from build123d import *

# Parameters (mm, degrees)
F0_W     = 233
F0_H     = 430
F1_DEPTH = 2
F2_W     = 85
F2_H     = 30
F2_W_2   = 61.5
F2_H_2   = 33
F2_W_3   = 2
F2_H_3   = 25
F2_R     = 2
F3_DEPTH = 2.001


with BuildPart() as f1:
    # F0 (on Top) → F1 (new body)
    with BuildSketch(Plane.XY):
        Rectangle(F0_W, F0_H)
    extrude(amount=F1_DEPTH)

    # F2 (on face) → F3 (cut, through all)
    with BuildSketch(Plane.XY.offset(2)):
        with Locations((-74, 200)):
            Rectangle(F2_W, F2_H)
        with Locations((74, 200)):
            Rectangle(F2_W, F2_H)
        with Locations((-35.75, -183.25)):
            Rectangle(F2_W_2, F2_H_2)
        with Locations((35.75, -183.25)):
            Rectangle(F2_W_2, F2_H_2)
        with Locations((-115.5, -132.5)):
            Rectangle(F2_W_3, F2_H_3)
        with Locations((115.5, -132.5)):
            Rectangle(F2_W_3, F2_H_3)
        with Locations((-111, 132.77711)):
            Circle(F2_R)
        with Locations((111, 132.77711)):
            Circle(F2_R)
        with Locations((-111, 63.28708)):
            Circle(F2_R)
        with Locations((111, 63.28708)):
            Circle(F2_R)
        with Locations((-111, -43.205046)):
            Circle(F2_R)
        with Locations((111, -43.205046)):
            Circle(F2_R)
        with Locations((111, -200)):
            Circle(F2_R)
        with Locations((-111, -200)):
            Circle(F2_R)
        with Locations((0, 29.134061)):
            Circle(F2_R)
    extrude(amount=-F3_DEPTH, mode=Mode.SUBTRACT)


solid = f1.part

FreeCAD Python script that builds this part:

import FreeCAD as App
import Part
import Sketcher

V = App.Vector
Q = App.Units.Quantity

doc = App.newDocument("Part")
params = doc.addObject("Spreadsheet::Sheet", "Params")
for row, (alias, value) in enumerate([
    ("sketch1_width", "233 mm"),
    ("sketch1_height", "430 mm"),
    ("pad1_length", "2 mm"),
    ("sketch2_diameter", "4 mm"),
    ("sketch2_width", "85 mm"),
    ("sketch2_width2", "2 mm"),
    ("sketch2_height", "30 mm"),
    ("sketch2_height2", "33 mm"),
], start=1):
    params.set(f"A{row}", alias)
    params.set(f"B{row}", "=" + value)
    params.setAlias(f"B{row}", alias)

body = doc.addObject("PartDesign::Body", "Body")

sketch1 = doc.addObject("Sketcher::SketchObject", "Sketch")
body.addObject(sketch1)
sketch1.AttachmentSupport = (doc.XY_Plane, [""])
sketch1.MapMode = "FlatFace"
sketch1.addGeometry(Part.LineSegment(V(-116.5, 215, 0), V(-116.5, -215, 0)), False)
sketch1.addGeometry(Part.LineSegment(V(-116.5, -215, 0), V(116.5, -215, 0)), False)
sketch1.addGeometry(Part.LineSegment(V(116.5, -215, 0), V(116.5, 215, 0)), False)
sketch1.addGeometry(Part.LineSegment(V(116.5, 215, 0), V(-116.5, 215, 0)), False)
sketch1.addConstraint(Sketcher.Constraint("Coincident", 0, 2, 1, 1))
sketch1.addConstraint(Sketcher.Constraint("Coincident", 1, 2, 2, 1))
sketch1.addConstraint(Sketcher.Constraint("Coincident", 2, 2, 3, 1))
sketch1.addConstraint(Sketcher.Constraint("Coincident", 3, 2, 0, 1))
sketch1.addConstraint(Sketcher.Constraint("Vertical", 0))
sketch1.addConstraint(Sketcher.Constraint("Horizontal", 1))
sketch1.addConstraint(Sketcher.Constraint("Vertical", 2))
sketch1.addConstraint(Sketcher.Constraint("Horizontal", 3))
sketch1.addConstraint(Sketcher.Constraint("Symmetric", 0, 2, 2, 2, -1, 1))
sketch1.addConstraint(Sketcher.Constraint("DistanceX", 1, 1, 1, 2, Q("233 mm")))
sketch1.addConstraint(Sketcher.Constraint("DistanceY", 0, 2, 0, 1, Q("430 mm")))
sketch1.setExpression("Constraints[9]", "Params.sketch1_width")
sketch1.setExpression("Constraints[10]", "Params.sketch1_height")
pad1 = doc.addObject("PartDesign::Pad", "Pad")
body.addObject(pad1)
pad1.Profile = sketch1
pad1.setExpression("Length", "Params.pad1_length")

sketch2 = doc.addObject("Sketcher::SketchObject", "Sketch001")
body.addObject(sketch2)
sketch2.AttachmentSupport = (doc.XY_Plane, [""])
sketch2.MapMode = "FlatFace"
sketch2.AttachmentOffset = App.Placement(V(0, 0, 2), App.Rotation())
sketch2.addGeometry(Part.LineSegment(V(-116.5, 215, 0), V(-116.5, 185, 0)), False)
sketch2.addGeometry(Part.LineSegment(V(-116.5, 185, 0), V(-31.5, 185, 0)), False)
sketch2.addGeometry(Part.LineSegment(V(-31.5, 185, 0), V(-31.5, 215, 0)), False)
sketch2.addGeometry(Part.LineSegment(V(-31.5, 215, 0), V(-116.5, 215, 0)), False)
sketch2.addGeometry(Part.LineSegment(V(31.5, 215, 0), V(31.5, 185, 0)), False)
sketch2.addGeometry(Part.LineSegment(V(31.5, 185, 0), V(116.5, 185, 0)), False)
sketch2.addGeometry(Part.LineSegment(V(116.5, 185, 0), V(116.5, 215, 0)), False)
sketch2.addGeometry(Part.LineSegment(V(116.5, 215, 0), V(31.5, 215, 0)), False)
sketch2.addGeometry(Part.LineSegment(V(-66.5, -166.75, 0), V(-66.5, -199.75, 0)), False)
sketch2.addGeometry(Part.LineSegment(V(-66.5, -199.75, 0), V(-5, -199.75, 0)), False)
sketch2.addGeometry(Part.LineSegment(V(-5, -199.75, 0), V(-5, -166.75, 0)), False)
sketch2.addGeometry(Part.LineSegment(V(-5, -166.75, 0), V(-66.5, -166.75, 0)), False)
sketch2.addGeometry(Part.LineSegment(V(5, -166.75, 0), V(5, -199.75, 0)), False)
sketch2.addGeometry(Part.LineSegment(V(5, -199.75, 0), V(66.5, -199.75, 0)), False)
sketch2.addGeometry(Part.LineSegment(V(66.5, -199.75, 0), V(66.5, -166.75, 0)), False)
sketch2.addGeometry(Part.LineSegment(V(66.5, -166.75, 0), V(5, -166.75, 0)), False)
sketch2.addGeometry(Part.LineSegment(V(-116.5, -120, 0), V(-116.5, -145, 0)), False)
sketch2.addGeometry(Part.LineSegment(V(-116.5, -145, 0), V(-114.5, -145, 0)), False)
sketch2.addGeometry(Part.LineSegment(V(-114.5, -145, 0), V(-114.5, -120, 0)), False)
sketch2.addGeometry(Part.LineSegment(V(-114.5, -120, 0), V(-116.5, -120, 0)), False)
sketch2.addGeometry(Part.LineSegment(V(114.5, -120, 0), V(114.5, -145, 0)), False)
sketch2.addGeometry(Part.LineSegment(V(114.5, -145, 0), V(116.5, -145, 0)), False)
sketch2.addGeometry(Part.LineSegment(V(116.5, -145, 0), V(116.5, -120, 0)), False)
sketch2.addGeometry(Part.LineSegment(V(116.5, -120, 0), V(114.5, -120, 0)), False)
sketch2.addGeometry(Part.Circle(V(-111, 132.77711, 0), V(0, 0, 1), 2), False)
sketch2.addGeometry(Part.Circle(V(111, 132.77711, 0), V(0, 0, 1), 2), False)
sketch2.addGeometry(Part.Circle(V(-111, 63.28708, 0), V(0, 0, 1), 2), False)
sketch2.addGeometry(Part.Circle(V(111, 63.28708, 0), V(0, 0, 1), 2), False)
sketch2.addGeometry(Part.Circle(V(-111, -43.205046, 0), V(0, 0, 1), 2), False)
sketch2.addGeometry(Part.Circle(V(111, -43.205046, 0), V(0, 0, 1), 2), False)
sketch2.addGeometry(Part.Circle(V(111, -200, 0), V(0, 0, 1), 2), False)
sketch2.addGeometry(Part.Circle(V(-111, -200, 0), V(0, 0, 1), 2), False)
sketch2.addGeometry(Part.Circle(V(0, 29.134061, 0), V(0, 0, 1), 2), False)
sketch2.addConstraint(Sketcher.Constraint("Coincident", 0, 2, 1, 1))
sketch2.addConstraint(Sketcher.Constraint("Coincident", 1, 2, 2, 1))
sketch2.addConstraint(Sketcher.Constraint("Coincident", 2, 2, 3, 1))
sketch2.addConstraint(Sketcher.Constraint("Coincident", 3, 2, 0, 1))
sketch2.addConstraint(Sketcher.Constraint("Coincident", 4, 2, 5, 1))
sketch2.addConstraint(Sketcher.Constraint("Coincident", 5, 2, 6, 1))
sketch2.addConstraint(Sketcher.Constraint("Coincident", 6, 2, 7, 1))
sketch2.addConstraint(Sketcher.Constraint("Coincident", 7, 2, 4, 1))
sketch2.addConstraint(Sketcher.Constraint("Coincident", 8, 2, 9, 1))
sketch2.addConstraint(Sketcher.Constraint("Coincident", 9, 2, 10, 1))
sketch2.addConstraint(Sketcher.Constraint("Coincident", 10, 2, 11, 1))
sketch2.addConstraint(Sketcher.Constraint("Coincident", 11, 2, 8, 1))
sketch2.addConstraint(Sketcher.Constraint("Coincident", 12, 2, 13, 1))
sketch2.addConstraint(Sketcher.Constraint("Coincident", 13, 2, 14, 1))
sketch2.addConstraint(Sketcher.Constraint("Coincident", 14, 2, 15, 1))
sketch2.addConstraint(Sketcher.Constraint("Coincident", 15, 2, 12, 1))
sketch2.addConstraint(Sketcher.Constraint("Coincident", 16, 2, 17, 1))
sketch2.addConstraint(Sketcher.Constraint("Coincident", 17, 2, 18, 1))
sketch2.addConstraint(Sketcher.Constraint("Coincident", 18, 2, 19, 1))
sketch2.addConstraint(Sketcher.Constraint("Coincident", 19, 2, 16, 1))
sketch2.addConstraint(Sketcher.Constraint("Coincident", 20, 2, 21, 1))
sketch2.addConstraint(Sketcher.Constraint("Coincident", 21, 2, 22, 1))
sketch2.addConstraint(Sketcher.Constraint("Coincident", 22, 2, 23, 1))
sketch2.addConstraint(Sketcher.Constraint("Coincident", 23, 2, 20, 1))
sketch2.addConstraint(Sketcher.Constraint("Vertical", 0))
sketch2.addConstraint(Sketcher.Constraint("Horizontal", 1))
sketch2.addConstraint(Sketcher.Constraint("Vertical", 2))
sketch2.addConstraint(Sketcher.Constraint("Horizontal", 3))
sketch2.addConstraint(Sketcher.Constraint("Vertical", 4))
sketch2.addConstraint(Sketcher.Constraint("Horizontal", 5))
sketch2.addConstraint(Sketcher.Constraint("Vertical", 6))
sketch2.addConstraint(Sketcher.Constraint("Horizontal", 7))
sketch2.addConstraint(Sketcher.Constraint("Vertical", 8))
sketch2.addConstraint(Sketcher.Constraint("Horizontal", 9))
sketch2.addConstraint(Sketcher.Constraint("Vertical", 10))
sketch2.addConstraint(Sketcher.Constraint("Horizontal", 11))
sketch2.addConstraint(Sketcher.Constraint("Vertical", 12))
sketch2.addConstraint(Sketcher.Constraint("Horizontal", 13))
sketch2.addConstraint(Sketcher.Constraint("Vertical", 14))
sketch2.addConstraint(Sketcher.Constraint("Horizontal", 15))
sketch2.addConstraint(Sketcher.Constraint("Vertical", 16))
sketch2.addConstraint(Sketcher.Constraint("Horizontal", 17))
sketch2.addConstraint(Sketcher.Constraint("Vertical", 18))
sketch2.addConstraint(Sketcher.Constraint("Horizontal", 19))
sketch2.addConstraint(Sketcher.Constraint("Vertical", 20))
sketch2.addConstraint(Sketcher.Constraint("Horizontal", 21))
sketch2.addConstraint(Sketcher.Constraint("Vertical", 22))
sketch2.addConstraint(Sketcher.Constraint("Horizontal", 23))
sketch2.addConstraint(Sketcher.Constraint("Equal", 24, 25))
sketch2.addConstraint(Sketcher.Constraint("Equal", 25, 26))
sketch2.addConstraint(Sketcher.Constraint("Equal", 26, 27))
sketch2.addConstraint(Sketcher.Constraint("Equal", 27, 28))
sketch2.addConstraint(Sketcher.Constraint("Equal", 28, 29))
sketch2.addConstraint(Sketcher.Constraint("Equal", 29, 30))
sketch2.addConstraint(Sketcher.Constraint("Equal", 30, 31))
sketch2.addConstraint(Sketcher.Constraint("Equal", 31, 32))
sketch2.addConstraint(Sketcher.Constraint("Symmetric", 24, 3, 25, 3, -2))
sketch2.addConstraint(Sketcher.Constraint("Symmetric", 26, 3, 27, 3, -2))
sketch2.addConstraint(Sketcher.Constraint("Symmetric", 28, 3, 29, 3, -2))
sketch2.addConstraint(Sketcher.Constraint("Symmetric", 30, 3, 31, 3, -2))
sketch2.addConstraint(Sketcher.Constraint("Symmetric", 1, 2, 4, 2, -2))
sketch2.addConstraint(Sketcher.Constraint("Symmetric", 3, 2, 6, 2, -2))
sketch2.addConstraint(Sketcher.Constraint("Symmetric", 9, 2, 12, 2, -2))
sketch2.addConstraint(Sketcher.Constraint("Symmetric", 11, 2, 14, 2, -2))
sketch2.addConstraint(Sketcher.Constraint("Symmetric", 17, 2, 20, 2, -2))
sketch2.addConstraint(Sketcher.Constraint("Symmetric", 19, 2, 22, 2, -2))
sketch2.addConstraint(Sketcher.Constraint("PointOnObject", 32, 3, -2))
sketch2.addConstraint(Sketcher.Constraint("Vertical", 24, 3, 26, 3))
sketch2.addConstraint(Sketcher.Constraint("Vertical", 26, 3, 28, 3))
sketch2.addConstraint(Sketcher.Constraint("Vertical", 29, 3, 30, 3))
sketch2.addConstraint(Sketcher.Constraint("Vertical", 3, 2, 16, 2))
sketch2.addConstraint(Sketcher.Constraint("Diameter", 24, Q("4 mm")))
sketch2.addConstraint(Sketcher.Constraint("DistanceX", 1, 1, 1, 2, Q("85 mm")))
sketch2.addConstraint(Sketcher.Constraint("DistanceX", 17, 1, 17, 2, Q("2 mm")))
sketch2.addConstraint(Sketcher.Constraint("DistanceY", 0, 2, 0, 1, Q("30 mm")))
sketch2.addConstraint(Sketcher.Constraint("DistanceY", 8, 2, 8, 1, Q("33 mm")))
sketch2.addConstraint(Sketcher.Constraint("DistanceY", 16, 2, 16, 1, Q("25 mm")))
sketch2.addConstraint(Sketcher.Constraint("DistanceX", 9, 1, 9, 2, Q("61.5 mm")))
sketch2.addConstraint(Sketcher.Constraint("DistanceX", 24, 3, -1, 1, Q("111 mm")))
sketch2.addConstraint(Sketcher.Constraint("DistanceY", 30, 3, -1, 1, Q("200 mm")))
sketch2.addConstraint(Sketcher.Constraint("DistanceY", -1, 1, 0, 2, Q("185 mm")))
sketch2.addConstraint(Sketcher.Constraint("DistanceX", 9, 2, -1, 1, Q("5 mm")))
sketch2.addConstraint(Sketcher.Constraint("DistanceY", 16, 2, -1, 1, Q("145 mm")))
sketch2.addConstraint(Sketcher.Constraint("DistanceX", 1, 2, 4, 2, Q("63 mm")))
sketch2.addConstraint(Sketcher.Constraint("DistanceY", 8, 2, -1, 1, Q("199.75 mm")))
sketch2.addConstraint(Sketcher.Constraint("DistanceY", -1, 1, 24, 3, Q("132.77711 mm")))
sketch2.addConstraint(Sketcher.Constraint("DistanceY", -1, 1, 26, 3, Q("63.28708 mm")))
sketch2.addConstraint(Sketcher.Constraint("DistanceY", -1, 1, 32, 3, Q("29.134061 mm")))
sketch2.addConstraint(Sketcher.Constraint("DistanceY", 28, 3, -1, 1, Q("43.205046 mm")))
sketch2.setExpression("Constraints[71]", "Params.sketch2_diameter")
sketch2.setExpression("Constraints[72]", "Params.sketch2_width")
sketch2.setExpression("Constraints[73]", "Params.sketch2_width2")
sketch2.setExpression("Constraints[74]", "Params.sketch2_height")
sketch2.setExpression("Constraints[75]", "Params.sketch2_height2")
pocket1 = doc.addObject("PartDesign::Pocket", "Pocket")
body.addObject(pocket1)
pocket1.Profile = sketch2
pocket1.Type = "ThroughAll"

doc.recompute()
